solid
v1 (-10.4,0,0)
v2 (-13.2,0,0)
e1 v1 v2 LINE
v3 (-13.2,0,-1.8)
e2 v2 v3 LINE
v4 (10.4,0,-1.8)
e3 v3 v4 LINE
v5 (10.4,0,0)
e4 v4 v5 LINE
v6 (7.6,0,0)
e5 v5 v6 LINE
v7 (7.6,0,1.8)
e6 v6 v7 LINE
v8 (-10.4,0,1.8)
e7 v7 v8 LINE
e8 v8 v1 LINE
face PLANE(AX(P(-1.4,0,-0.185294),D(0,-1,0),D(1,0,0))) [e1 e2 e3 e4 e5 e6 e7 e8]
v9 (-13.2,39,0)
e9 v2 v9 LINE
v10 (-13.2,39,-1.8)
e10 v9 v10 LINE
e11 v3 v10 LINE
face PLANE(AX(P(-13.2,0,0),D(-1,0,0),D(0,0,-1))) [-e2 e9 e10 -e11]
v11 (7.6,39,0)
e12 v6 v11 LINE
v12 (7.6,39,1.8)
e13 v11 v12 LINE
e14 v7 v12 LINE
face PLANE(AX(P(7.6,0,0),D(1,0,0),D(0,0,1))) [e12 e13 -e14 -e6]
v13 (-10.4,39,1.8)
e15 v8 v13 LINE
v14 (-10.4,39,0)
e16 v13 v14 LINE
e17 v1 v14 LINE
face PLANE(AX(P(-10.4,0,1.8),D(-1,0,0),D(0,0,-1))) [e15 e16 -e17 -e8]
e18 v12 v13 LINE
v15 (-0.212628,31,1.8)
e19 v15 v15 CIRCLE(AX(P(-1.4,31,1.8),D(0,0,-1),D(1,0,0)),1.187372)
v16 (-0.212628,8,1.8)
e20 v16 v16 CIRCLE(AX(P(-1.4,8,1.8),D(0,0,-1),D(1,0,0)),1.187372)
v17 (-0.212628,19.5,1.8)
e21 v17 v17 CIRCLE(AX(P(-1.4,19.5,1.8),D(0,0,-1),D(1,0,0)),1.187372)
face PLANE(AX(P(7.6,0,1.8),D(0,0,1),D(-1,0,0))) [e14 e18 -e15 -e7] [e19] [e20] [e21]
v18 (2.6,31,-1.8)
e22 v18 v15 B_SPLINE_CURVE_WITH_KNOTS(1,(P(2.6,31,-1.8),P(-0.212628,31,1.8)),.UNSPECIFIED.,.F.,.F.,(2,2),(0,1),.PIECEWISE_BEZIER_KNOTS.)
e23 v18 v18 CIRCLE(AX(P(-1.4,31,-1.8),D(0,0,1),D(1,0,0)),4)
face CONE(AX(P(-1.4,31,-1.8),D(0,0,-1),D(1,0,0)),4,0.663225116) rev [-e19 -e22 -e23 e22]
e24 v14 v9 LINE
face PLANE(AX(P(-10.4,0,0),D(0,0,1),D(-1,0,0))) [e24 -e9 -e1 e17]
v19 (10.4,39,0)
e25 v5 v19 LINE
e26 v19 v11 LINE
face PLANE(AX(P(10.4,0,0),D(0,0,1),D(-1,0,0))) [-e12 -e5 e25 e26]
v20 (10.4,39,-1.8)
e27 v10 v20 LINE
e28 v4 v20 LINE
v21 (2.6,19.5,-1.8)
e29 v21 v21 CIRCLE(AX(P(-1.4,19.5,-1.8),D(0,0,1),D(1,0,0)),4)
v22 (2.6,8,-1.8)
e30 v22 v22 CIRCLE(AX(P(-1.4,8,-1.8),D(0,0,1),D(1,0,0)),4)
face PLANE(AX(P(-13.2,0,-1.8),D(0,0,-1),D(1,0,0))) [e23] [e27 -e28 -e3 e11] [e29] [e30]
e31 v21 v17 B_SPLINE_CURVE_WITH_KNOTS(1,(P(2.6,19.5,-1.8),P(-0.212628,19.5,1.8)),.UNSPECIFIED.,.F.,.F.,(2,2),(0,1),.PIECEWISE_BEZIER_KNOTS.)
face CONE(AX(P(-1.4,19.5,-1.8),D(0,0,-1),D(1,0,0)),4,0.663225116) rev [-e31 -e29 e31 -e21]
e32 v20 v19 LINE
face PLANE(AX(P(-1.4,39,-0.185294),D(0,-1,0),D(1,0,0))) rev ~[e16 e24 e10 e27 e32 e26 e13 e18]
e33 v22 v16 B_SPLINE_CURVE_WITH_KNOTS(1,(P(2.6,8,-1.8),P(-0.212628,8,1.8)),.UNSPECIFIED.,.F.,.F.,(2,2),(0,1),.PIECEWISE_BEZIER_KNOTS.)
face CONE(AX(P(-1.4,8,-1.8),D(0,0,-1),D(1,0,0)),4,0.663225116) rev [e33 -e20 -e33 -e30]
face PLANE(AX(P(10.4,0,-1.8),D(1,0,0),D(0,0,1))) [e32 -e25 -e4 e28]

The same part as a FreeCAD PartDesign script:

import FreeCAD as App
import Part
import Sketcher
Q = App.Units.Quantity

doc = App.newDocument("Part")
params = doc.addObject("Spreadsheet::Sheet", "Params")
for row, (alias, value) in enumerate([
    ("sketch1_width", "18 mm"),
    ("sketch1_width2", "2.8 mm"),
    ("sketch1_height", "1.8 mm"),
    ("pad1_length", "39 mm"),
    ("sketch2_diameter", "8 mm"),
    ("pocket1_taper", "-38 deg"),
], start=1):
    params.set(f"A{row}", alias)
    params.set(f"B{row}", "=" + value)
    params.setAlias(f"B{row}", alias)

body = doc.addObject("PartDesign::Body", "Body")

sketch1 = body.newObject("Sketcher::SketchObject", "Sketch")
sketch1.AttachmentSupport = (doc.getObject("XZ_Plane"), [""])
sketch1.MapMode = "FlatFace"
sketch1.addGeometry([
    Part.LineSegment(App.Vector(7.6, 1.8, 0), App.Vector(-10.4, 1.8, 0)),
    Part.LineSegment(App.Vector(-10.4, 1.8, 0), App.Vector(-10.4, 0, 0)),
    Part.LineSegment(App.Vector(-10.4, 0, 0), App.Vector(-13.2, 0, 0)),
    Part.LineSegment(App.Vector(-13.2, 0, 0), App.Vector(-13.2, -1.8, 0)),
    Part.LineSegment(App.Vector(-13.2, -1.8, 0), App.Vector(10.4, -1.8, 0)),
    Part.LineSegment(App.Vector(10.4, -1.8, 0), App.Vector(10.4, 0, 0)),
    Part.LineSegment(App.Vector(10.4, 0, 0), App.Vector(7.6, 0, 0)),
    Part.LineSegment(App.Vector(7.6, 0, 0), App.Vector(7.6, 1.8, 0)),
], False)
sketch1.addConstraint([
    Sketcher.Constraint("Coincident", 0, 2, 1, 1),
    Sketcher.Constraint("Coincident", 1, 2, 2, 1),
    Sketcher.Constraint("Coincident", 2, 2, 3, 1),
    Sketcher.Constraint("Coincident", 3, 2, 4, 1),
    Sketcher.Constraint("Coincident", 4, 2, 5, 1),
    Sketcher.Constraint("Coincident", 5, 2, 6, 1),
    Sketcher.Constraint("Coincident", 6, 2, 7, 1),
    Sketcher.Constraint("Coincident", 7, 2, 0, 1),
    Sketcher.Constraint("Horizontal", 0),
    Sketcher.Constraint("Vertical", 1),
    Sketcher.Constraint("Horizontal", 2),
    Sketcher.Constraint("Vertical", 3),
    Sketcher.Constraint("Horizontal", 4),
    Sketcher.Constraint("Vertical", 5),
    Sketcher.Constraint("Horizontal", 6),
    Sketcher.Constraint("Vertical", 7),
    Sketcher.Constraint("Symmetric", 0, 2, 4, 2, -1, 1),
    Sketcher.Constraint("PointOnObject", 1, 2, -1),
    Sketcher.Constraint("PointOnObject", 5, 2, -1),
    Sketcher.Constraint("Equal", 2, 6),
    Sketcher.Constraint("DistanceX", 0, 2, 0, 1, Q("18 mm")),
    Sketcher.Constraint("DistanceX", 2, 2, 2, 1, Q("2.8 mm")),
    Sketcher.Constraint("DistanceY", 1, 2, 1, 1, Q("1.8 mm")),
])
sketch1.setExpression("Constraints[20]", "Params.sketch1_width")
sketch1.setExpression("Constraints[21]", "Params.sketch1_width2")
sketch1.setExpression("Constraints[22]", "Params.sketch1_height")
pad1 = body.newObject("PartDesign::Pad", "Pad")
pad1.Profile = sketch1
pad1.setExpression("Length", "Params.pad1_length")
pad1.Reversed = True

sketch2 = body.newObject("Sketcher::SketchObject", "Sketch001")
sketch2.AttachmentSupport = (doc.getObject("XY_Plane"), [""])
sketch2.MapMode = "FlatFace"
sketch2.AttachmentOffset = App.Placement(App.Vector(0, 0, -1.8), App.Rotation())
sketch2.addGeometry([
    Part.Circle(App.Vector(-1.4, 31, 0), App.Vector(0, 0, 1), 4),
    Part.Circle(App.Vector(-1.4, 19.5, 0), App.Vector(0, 0, 1), 4),
    Part.Circle(App.Vector(-1.4, 8, 0), App.Vector(0, 0, 1), 4),
], False)
sketch2.addConstraint([
    Sketcher.Constraint("Equal", 0, 1),
    Sketcher.Constraint("Equal", 1, 2),
    Sketcher.Constraint("Vertical", 0, 3, 1, 3),
    Sketcher.Constraint("Vertical", 1, 3, 2, 3),
    Sketcher.Constraint("Diameter", 0, Q("8 mm")),
    Sketcher.Constraint("DistanceY", -1, 1, 0, 3, Q("31 mm")),
    Sketcher.Constraint("DistanceY", -1, 1, 2, 3, Q("8 mm")),
    Sketcher.Constraint("DistanceX", 0, 3, -1, 1, Q("1.4 mm")),
    Sketcher.Constraint("DistanceY", -1, 1, 1, 3, Q("19.5 mm")),
])
sketch2.setExpression("Constraints[4]", "Params.sketch2_diameter")
pocket1 = body.newObject("PartDesign::Pocket", "Pocket")
pocket1.Profile = sketch2
pocket1.Type = "ThroughAll"
pocket1.Reversed = True
pocket1.setExpression("TaperAngle", "Params.pocket1_taper")

doc.recompute()
